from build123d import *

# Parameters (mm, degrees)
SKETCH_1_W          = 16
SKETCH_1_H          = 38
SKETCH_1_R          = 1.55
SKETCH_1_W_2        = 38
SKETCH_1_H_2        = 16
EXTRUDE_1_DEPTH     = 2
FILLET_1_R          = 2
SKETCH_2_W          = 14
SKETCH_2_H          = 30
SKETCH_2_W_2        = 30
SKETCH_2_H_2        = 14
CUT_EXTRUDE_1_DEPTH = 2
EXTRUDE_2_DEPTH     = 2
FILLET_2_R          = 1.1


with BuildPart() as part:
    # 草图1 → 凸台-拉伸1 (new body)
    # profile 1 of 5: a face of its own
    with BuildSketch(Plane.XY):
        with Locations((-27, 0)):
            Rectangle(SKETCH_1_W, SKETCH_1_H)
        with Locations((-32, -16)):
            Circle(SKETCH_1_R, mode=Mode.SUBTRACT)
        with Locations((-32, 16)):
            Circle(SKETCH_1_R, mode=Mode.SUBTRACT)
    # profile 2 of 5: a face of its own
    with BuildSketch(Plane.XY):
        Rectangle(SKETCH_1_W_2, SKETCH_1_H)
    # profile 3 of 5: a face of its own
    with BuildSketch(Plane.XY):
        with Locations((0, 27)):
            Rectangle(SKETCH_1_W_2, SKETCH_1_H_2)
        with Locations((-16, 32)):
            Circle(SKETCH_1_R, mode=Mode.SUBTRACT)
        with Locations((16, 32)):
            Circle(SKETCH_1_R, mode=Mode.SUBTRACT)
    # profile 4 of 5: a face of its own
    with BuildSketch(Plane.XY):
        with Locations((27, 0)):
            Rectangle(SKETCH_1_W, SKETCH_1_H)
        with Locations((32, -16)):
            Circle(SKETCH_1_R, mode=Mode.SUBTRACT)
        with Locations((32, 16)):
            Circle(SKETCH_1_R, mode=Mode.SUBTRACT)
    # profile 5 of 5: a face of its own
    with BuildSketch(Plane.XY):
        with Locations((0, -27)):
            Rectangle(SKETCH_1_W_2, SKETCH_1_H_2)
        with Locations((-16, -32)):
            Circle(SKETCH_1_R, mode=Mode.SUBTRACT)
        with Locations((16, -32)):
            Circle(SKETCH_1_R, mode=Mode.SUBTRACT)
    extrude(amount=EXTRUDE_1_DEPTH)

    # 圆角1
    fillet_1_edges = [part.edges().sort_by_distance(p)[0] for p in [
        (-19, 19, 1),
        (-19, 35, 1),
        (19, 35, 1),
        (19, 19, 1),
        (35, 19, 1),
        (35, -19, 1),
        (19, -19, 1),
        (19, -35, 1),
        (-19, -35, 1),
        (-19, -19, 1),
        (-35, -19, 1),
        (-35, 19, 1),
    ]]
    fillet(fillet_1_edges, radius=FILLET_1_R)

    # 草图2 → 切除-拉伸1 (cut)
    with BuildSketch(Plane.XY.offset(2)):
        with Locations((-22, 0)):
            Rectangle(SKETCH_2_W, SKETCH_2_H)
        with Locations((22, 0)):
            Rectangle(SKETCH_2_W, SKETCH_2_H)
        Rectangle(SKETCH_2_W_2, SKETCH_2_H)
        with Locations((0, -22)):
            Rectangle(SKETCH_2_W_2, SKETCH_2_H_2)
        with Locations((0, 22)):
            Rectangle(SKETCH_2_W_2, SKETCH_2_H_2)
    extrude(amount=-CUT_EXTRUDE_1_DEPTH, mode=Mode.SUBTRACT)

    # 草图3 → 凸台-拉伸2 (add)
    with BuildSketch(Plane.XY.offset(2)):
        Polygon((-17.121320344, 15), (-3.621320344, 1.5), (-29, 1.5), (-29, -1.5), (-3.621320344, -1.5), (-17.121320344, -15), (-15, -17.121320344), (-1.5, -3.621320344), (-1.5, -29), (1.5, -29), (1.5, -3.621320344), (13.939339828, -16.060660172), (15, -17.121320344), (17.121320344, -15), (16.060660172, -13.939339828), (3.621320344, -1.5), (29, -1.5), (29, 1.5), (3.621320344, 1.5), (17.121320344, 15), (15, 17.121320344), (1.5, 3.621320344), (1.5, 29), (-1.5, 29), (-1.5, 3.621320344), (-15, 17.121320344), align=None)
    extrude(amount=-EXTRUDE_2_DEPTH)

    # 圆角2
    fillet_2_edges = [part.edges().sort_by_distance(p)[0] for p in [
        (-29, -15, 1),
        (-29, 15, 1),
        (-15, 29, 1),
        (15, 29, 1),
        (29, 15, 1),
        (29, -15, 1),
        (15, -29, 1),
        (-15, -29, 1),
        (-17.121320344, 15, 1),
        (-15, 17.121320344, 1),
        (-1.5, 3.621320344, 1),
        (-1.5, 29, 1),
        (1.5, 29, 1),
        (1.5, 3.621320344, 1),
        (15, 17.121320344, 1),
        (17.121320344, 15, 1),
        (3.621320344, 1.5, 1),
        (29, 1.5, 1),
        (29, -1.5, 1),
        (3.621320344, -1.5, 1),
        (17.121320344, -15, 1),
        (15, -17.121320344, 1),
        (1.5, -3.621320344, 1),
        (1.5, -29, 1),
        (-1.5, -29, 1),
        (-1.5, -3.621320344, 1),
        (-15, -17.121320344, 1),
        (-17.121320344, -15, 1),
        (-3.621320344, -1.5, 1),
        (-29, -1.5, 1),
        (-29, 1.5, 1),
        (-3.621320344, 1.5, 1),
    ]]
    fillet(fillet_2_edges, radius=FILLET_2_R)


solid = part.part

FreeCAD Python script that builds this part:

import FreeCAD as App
import Part
import Sketcher
Q = App.Units.Quantity


def edges_at(feature, points):
    """Names of the edges that pass closest to the given points."""
    edges = feature.Shape.Edges
    near = lambda p: min(range(len(edges)), key=lambda i: edges[i].distToShape(Part.Vertex(*p))[0])
    return sorted({f"Edge{near(p) + 1}" for p in points})


def add_polygon(sketch, points):
    """Adds a closed chain of lines whose ends are joined by coincident constraints."""
    first, n = sketch.GeometryCount, len(points)
    for a, b in zip(points, points[1:] + points[:1]):
        sketch.addGeometry(Part.LineSegment(App.Vector(*a, 0), App.Vector(*b, 0)), False)
    for i in range(n):
        sketch.addConstraint(Sketcher.Constraint("Coincident", first + i, 2, first + (i + 1) % n, 1))

doc = App.newDocument("Part")
body = doc.addObject("PartDesign::Body", "Body")

# Sketch on XY plane
sketch1 = doc.addObject("Sketcher::SketchObject", "Sketch")
body.addObject(sketch1)
sketch1.AttachmentSupport = (doc.XY_Plane, [""])
sketch1.MapMode = "FlatFace"
add_polygon(sketch1, [(-35, 19), (-35, -19), (-19, -19), (-19, -35), (19, -35), (19, -19), (35, -19), (35, 19), (19, 19), (19, 35), (-19, 35), (-19, 19)])  # lines 0-11
sketch1.addGeometry(Part.Circle(App.Vector(-32, -16, 0), App.Vector(0, 0, 1), 1.6), False)  # 12
sketch1.addGeometry(Part.Circle(App.Vector(-32, 16, 0), App.Vector(0, 0, 1), 1.6), False)  # 13
sketch1.addGeometry(Part.Circle(App.Vector(16, 32, 0), App.Vector(0, 0, 1), 1.6), False)  # 14
sketch1.addGeometry(Part.Circle(App.Vector(-16, 32, 0), App.Vector(0, 0, 1), 1.6), False)  # 15
sketch1.addGeometry(Part.Circle(App.Vector(16, -32, 0), App.Vector(0, 0, 1), 1.6), False)  # 16
sketch1.addGeometry(Part.Circle(App.Vector(-16, -32, 0), App.Vector(0, 0, 1), 1.6), False)  # 17
sketch1.addGeometry(Part.Circle(App.Vector(32, 16, 0), App.Vector(0, 0, 1), 1.6), False)  # 18
sketch1.addGeometry(Part.Circle(App.Vector(32, -16, 0), App.Vector(0, 0, 1), 1.6), False)  # 19
sketch1.addConstraint([
    Sketcher.Constraint("Vertical", 0),
    Sketcher.Constraint("Horizontal", 1),
    Sketcher.Constraint("Vertical", 2),
    Sketcher.Constraint("Horizontal", 3),
    Sketcher.Constraint("Vertical", 4),
    Sketcher.Constraint("Horizontal", 5),
    Sketcher.Constraint("Vertical", 6),
    Sketcher.Constraint("Horizontal", 7),
    Sketcher.Constraint("Vertical", 8),
    Sketcher.Constraint("Horizontal", 9),
    Sketcher.Constraint("Vertical", 10),
    Sketcher.Constraint("Horizontal", 11),
    Sketcher.Constraint("Equal", 12, 13),
    Sketcher.Constraint("Equal", 13, 14),
    Sketcher.Constraint("Equal", 14, 15),
    Sketcher.Constraint("Equal", 15, 16),
    Sketcher.Constraint("Equal", 16, 17),
    Sketcher.Constraint("Equal", 17, 18),
    Sketcher.Constraint("Equal", 18, 19),
    Sketcher.Constraint("Symmetric", 15, 3, 16, 3, -1, 1),
    Sketcher.Constraint("Symmetric", 14, 3, 17, 3, -1, 1),
    Sketcher.Constraint("Symmetric", 12, 3, 18, 3, -1, 1),
    Sketcher.Constraint("Symmetric", 13, 3, 19, 3, -1, 1),
    Sketcher.Constraint("Symmetric", 0, 2, 6, 2, -1, 1),
    Sketcher.Constraint("Symmetric", 2, 2, 8, 2, -1, 1),
    Sketcher.Constraint("Symmetric", 4, 2, 10, 2, -1, 1),
    Sketcher.Constraint("Symmetric", 14, 3, 15, 3, -2),
    Sketcher.Constraint("Symmetric", 13, 3, 18, 3, -2),
    Sketcher.Constraint("Symmetric", 1, 2, 4, 2, -2),
    Sketcher.Constraint("Equal", 9, 0),
    Sketcher.Constraint("Equal", 11, 2),
    Sketcher.Constraint("Diameter", 12, Q("3.1 mm")),
    Sketcher.Constraint("DistanceX", 1, 1, 1, 2, Q("16 mm")),
    Sketcher.Constraint("DistanceX", 3, 1, 3, 2, Q("38 mm")),
    Sketcher.Constraint("DistanceX", 12, 3, -1, 1, Q("32 mm")),
    Sketcher.Constraint("DistanceY", 12, 3, -1, 1, Q("16 mm")),
    Sketcher.Constraint("DistanceX", -1, 1, 14, 3, Q("16 mm")),
    Sketcher.Constraint("DistanceY", -1, 1, 14, 3, Q("32 mm")),
])
pad1 = doc.addObject("PartDesign::Pad", "Pad")
body.addObject(pad1)
pad1.Profile = sketch1
pad1.Length = 2
doc.recompute()

fillet = doc.addObject("PartDesign::Fillet", "Fillet")
body.addObject(fillet)
fillet.Base = (pad1, edges_at(pad1, [
    (-19, 19, 1),
    (-19, 35, 1),
    (19, 35, 1),
    (19, 19, 1),
    (35, 19, 1),
    (35, -19, 1),
    (19, -19, 1),
    (19, -35, 1),
    (-19, -35, 1),
    (-19, -19, 1),
    (-35, -19, 1),
    (-35, 19, 1),
]))
fillet.Radius = 2

# Sketch on XY plane
sketch2 = doc.addObject("Sketcher::SketchObject", "Sketch001")
body.addObject(sketch2)
sketch2.AttachmentSupport = (doc.XY_Plane, [""])
sketch2.MapMode = "FlatFace"
sketch2.AttachmentOffset = App.Placement(App.Vector(0, 0, 2), App.Rotation())
add_polygon(sketch2, [(-29, 15), (-29, -15), (-15, -15), (-15, -29), (15, -29), (15, -15), (29, -15), (29, 15), (15, 15), (15, 29), (-15, 29), (-15, 15)])  # lines 0-11
sketch2.addConstraint([
    Sketcher.Constraint("Vertical", 0),
    Sketcher.Constraint("Horizontal", 1),
    Sketcher.Constraint("Vertical", 2),
    Sketcher.Constraint("Horizontal", 3),
    Sketcher.Constraint("Vertical", 4),
    Sketcher.Constraint("Horizontal", 5),
    Sketcher.Constraint("Vertical", 6),
    Sketcher.Constraint("Horizontal", 7),
    Sketcher.Constraint("Vertical", 8),
    Sketcher.Constraint("Horizontal", 9),
    Sketcher.Constraint("Vertical", 10),
    Sketcher.Constraint("Horizontal", 11),
    Sketcher.Constraint("Symmetric", 0, 2, 6, 2, -1, 1),
    Sketcher.Constraint("Symmetric", 2, 2, 8, 2, -1, 1),
    Sketcher.Constraint("Symmetric", 4, 2, 10, 2, -1, 1),
    Sketcher.Constraint("Symmetric", 1, 2, 4, 2, -2),
    Sketcher.Constraint("Equal", 9, 0),
    Sketcher.Constraint("Equal", 11, 2),
    Sketcher.Constraint("DistanceX", 1, 1, 1, 2, Q("14 mm")),
    Sketcher.Constraint("DistanceX", 3, 1, 3, 2, Q("30 mm")),
])
pocket1 = doc.addObject("PartDesign::Pocket", "Pocket")
body.addObject(pocket1)
pocket1.Profile = sketch2
pocket1.Length = 2

# Sketch on XY plane
sketch3 = doc.addObject("Sketcher::SketchObject", "Sketch002")
body.addObject(sketch3)
sketch3.AttachmentSupport = (doc.XY_Plane, [""])
sketch3.MapMode = "FlatFace"
sketch3.AttachmentOffset = App.Placement(App.Vector(0, 0, 2), App.Rotation())
add_polygon(sketch3, [(-17.1, 15), (-3.6, 1.5), (-29, 1.5), (-29, -1.5), (-3.6, -1.5), (-17.1, -15), (-15, -17.1), (-1.5, -3.6), (-1.5, -29), (1.5, -29), (1.5, -3.6), (15, -17.1), (17.1, -15), (3.6, -1.5), (29, -1.5), (29, 1.5), (3.6, 1.5), (17.1, 15), (15, 17.1), (1.5, 3.6), (1.5, 29), (-1.5, 29), (-1.5, 3.6), (-15, 17.1)])  # lines 0-23
sketch3.addConstraint([
    Sketcher.Constraint("Horizontal", 1),
    Sketcher.Constraint("Vertical", 2),
    Sketcher.Constraint("Horizontal", 3),
    Sketcher.Constraint("Vertical", 7),
    Sketcher.Constraint("Horizontal", 8),
    Sketcher.Constraint("Vertical", 9),
    Sketcher.Constraint("Horizontal", 13),
    Sketcher.Constraint("Vertical", 14),
    Sketcher.Constraint("Horizontal", 15),
    Sketcher.Constraint("Vertical", 19),
    Sketcher.Constraint("Horizontal", 20),
    Sketcher.Constraint("Vertical", 21),
    Sketcher.Constraint("Symmetric", 0, 2, 12, 2, -1, 1),
    Sketcher.Constraint("Symmetric", 2, 2, 14, 2, -1, 1),
    Sketcher.Constraint("Symmetric", 4, 2, 16, 2, -1, 1),
    Sketcher.Constraint("Symmetric", 5, 2, 17, 2, -1, 1),
    Sketcher.Constraint("Symmetric", 6, 2, 18, 2, -1, 1),
    Sketcher.Constraint("Symmetric", 8, 2, 20, 2, -1, 1),
    Sketcher.Constraint("Symmetric", 10, 2, 22, 2, -1, 1),
    Sketcher.Constraint("Symmetric", 11, 2, 23, 2, -1, 1),
    Sketcher.Constraint("Symmetric", 6, 2, 9, 2, -2),
    Sketcher.Constraint("Symmetric", 5, 2, 10, 2, -2),
    Sketcher.Constraint("Symmetric", 4, 2, 11, 2, -2),
    Sketcher.Constraint("Symmetric", 3, 2, 12, 2, -2),
    Sketcher.Constraint("Perpendicular", 0, 4),
    Sketcher.Constraint("Perpendicular", 4, 5),
    Sketcher.Constraint("Perpendicular", 5, 6),
    Sketcher.Constraint("Perpendicular", 12, 16),
    Sketcher.Constraint("Perpendicular", 18, 22),
    Sketcher.Constraint("Equal", 20, 2),
    Sketcher.Constraint("Equal", 15, 7),
    Sketcher.Constraint("Equal", 4, 6),
    Sketcher.Constraint("DistanceX", 8, 1, 8, 2, Q("3 mm")),
    Sketcher.Constraint("Distance", 5, Q("3 mm")),
    Sketcher.Constraint("DistanceX", 1, 2, -1, 1, Q("29 mm")),
    Sketcher.Constraint("DistanceY", 4, 2, -1, 1, Q("15 mm")),
])
pad2 = doc.addObject("PartDesign::Pad", "Pad001")
body.addObject(pad2)
pad2.Profile = sketch3
pad2.Length = 2
pad2.Reversed = True
doc.recompute()

fillet2 = doc.addObject("PartDesign::Fillet", "Fillet001")
body.addObject(fillet2)
fillet2.Base = (pad2, edges_at(pad2, [
    (-29, -15, 1),
    (-29, 15, 1),
    (-15, 29, 1),
    (15, 29, 1),
    (29, 15, 1),
    (29, -15, 1),
    (15, -29, 1),
    (-15, -29, 1),
    (-17.121, 15, 1),
    (-15, 17.121, 1),
    (-1.5, 3.621, 1),
    (-1.5, 29, 1),
    (1.5, 29, 1),
    (1.5, 3.621, 1),
    (15, 17.121, 1),
    (17.121, 15, 1),
    (3.621, 1.5, 1),
    (29, 1.5, 1),
    (29, -1.5, 1),
    (3.621, -1.5, 1),
    (17.121, -15, 1),
    (15, -17.121, 1),
    (1.5, -3.621, 1),
    (1.5, -29, 1),
    (-1.5, -29, 1),
    (-1.5, -3.621, 1),
    (-15, -17.121, 1),
    (-17.121, -15, 1),
    (-3.621, -1.5, 1),
    (-29, -1.5, 1),
    (-29, 1.5, 1),
    (-3.621, 1.5, 1),
]))
fillet2.Radius = 1.1

doc.recompute()
